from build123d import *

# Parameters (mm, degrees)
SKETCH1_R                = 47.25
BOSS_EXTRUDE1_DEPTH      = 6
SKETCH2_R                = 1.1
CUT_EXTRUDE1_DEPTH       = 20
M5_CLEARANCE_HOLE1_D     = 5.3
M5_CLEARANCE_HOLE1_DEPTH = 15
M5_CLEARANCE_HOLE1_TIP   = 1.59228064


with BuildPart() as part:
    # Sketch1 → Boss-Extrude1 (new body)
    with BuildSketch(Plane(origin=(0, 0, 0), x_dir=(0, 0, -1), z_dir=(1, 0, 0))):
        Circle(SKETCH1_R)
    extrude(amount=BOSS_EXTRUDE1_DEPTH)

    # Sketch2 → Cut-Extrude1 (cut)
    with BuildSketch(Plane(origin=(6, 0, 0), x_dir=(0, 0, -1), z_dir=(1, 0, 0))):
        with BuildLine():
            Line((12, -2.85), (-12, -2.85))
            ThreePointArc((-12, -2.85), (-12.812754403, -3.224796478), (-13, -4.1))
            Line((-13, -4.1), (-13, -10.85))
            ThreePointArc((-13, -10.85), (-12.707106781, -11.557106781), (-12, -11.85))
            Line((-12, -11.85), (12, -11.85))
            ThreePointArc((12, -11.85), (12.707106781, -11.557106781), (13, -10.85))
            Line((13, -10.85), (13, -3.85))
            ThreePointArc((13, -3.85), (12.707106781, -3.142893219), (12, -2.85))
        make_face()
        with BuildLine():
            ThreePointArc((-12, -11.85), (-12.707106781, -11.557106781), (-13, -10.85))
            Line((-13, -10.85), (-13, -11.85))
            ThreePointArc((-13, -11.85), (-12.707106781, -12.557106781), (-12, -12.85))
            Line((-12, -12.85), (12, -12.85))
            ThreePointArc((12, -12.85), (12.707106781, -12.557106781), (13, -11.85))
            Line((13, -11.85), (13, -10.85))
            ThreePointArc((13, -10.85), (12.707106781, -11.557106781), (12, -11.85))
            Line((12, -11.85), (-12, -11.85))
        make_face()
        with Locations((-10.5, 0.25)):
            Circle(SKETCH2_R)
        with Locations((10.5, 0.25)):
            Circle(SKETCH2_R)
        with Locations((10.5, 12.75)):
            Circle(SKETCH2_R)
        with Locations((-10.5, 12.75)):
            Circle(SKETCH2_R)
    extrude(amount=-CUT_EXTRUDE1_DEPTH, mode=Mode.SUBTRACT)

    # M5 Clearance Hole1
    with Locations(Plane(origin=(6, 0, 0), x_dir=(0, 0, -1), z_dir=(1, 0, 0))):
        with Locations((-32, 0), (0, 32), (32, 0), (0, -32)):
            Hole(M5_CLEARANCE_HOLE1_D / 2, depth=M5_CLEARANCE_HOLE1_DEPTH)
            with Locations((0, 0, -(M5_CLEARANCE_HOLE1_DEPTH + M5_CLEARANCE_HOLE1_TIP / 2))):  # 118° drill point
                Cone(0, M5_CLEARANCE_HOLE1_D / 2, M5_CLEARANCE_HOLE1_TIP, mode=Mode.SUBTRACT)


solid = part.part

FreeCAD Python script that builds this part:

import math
import FreeCAD as App
import Part
import Sketcher
from FreeCAD import Vector
Q = App.Units.Quantity

doc = App.newDocument("Part")
params = doc.addObject("Spreadsheet::Sheet", "Params")
for row, (alias, value) in enumerate([
    ("sketch1_diameter", "94.5 mm"),
    ("pad1_length", "6 mm"),
    ("sketch2_radius", "1 mm"),
    ("sketch2_diameter", "2.2 mm"),
    ("sketch2_width", "8 mm"),
    ("sketch2_height", "24 mm"),
    ("sketch2_width2", "7.75 mm"),
    ("pocket1_length", "20 mm"),
    ("sketch3_diameter", "5.3 mm"),
    ("hole_diameter", "5.3 mm"),
    ("hole_depth", "15 mm"),
], start=1):
    params.set(f"A{row}", alias)
    params.set(f"B{row}", "=" + value)
    params.setAlias(f"B{row}", alias)

body = doc.addObject("PartDesign::Body", "Body")

# Sketch on YZ plane
sketch1 = body.newObject("Sketcher::SketchObject", "Sketch")
sketch1.AttachmentSupport = (doc.getObject("YZ_Plane"), [""])
sketch1.MapMode = "FlatFace"
sketch1.addGeometry(Part.Circle(Vector(0, 0, 0), Vector(0, 0, 1), 47.25), False)
sketch1.addConstraint(Sketcher.Constraint("Coincident", 0, 3, -1, 1))
sketch1.addConstraint(Sketcher.Constraint("Diameter", 0, Q("94.5 mm")))
sketch1.setExpression("Constraints[1]", "Params.sketch1_diameter")
pad1 = body.newObject("PartDesign::Pad", "Pad")
pad1.Profile = sketch1
pad1.setExpression("Length", "Params.pad1_length")

# Sketch on YZ plane
sketch2 = body.newObject("Sketcher::SketchObject", "Sketch001")
sketch2.AttachmentSupport = (doc.getObject("YZ_Plane"), [""])
sketch2.MapMode = "FlatFace"
sketch2.AttachmentOffset = App.Placement(Vector(0, 0, 6), App.Rotation())
sketch2.addGeometry(Part.LineSegment(Vector(-2.85, -12, 0), Vector(-2.85, 12, 0)), False)
sketch2.addGeometry(Part.ArcOfCircle(Part.Circle(Vector(-3.849492, 12.031886, 0), Vector(0, 0, 1), 1), math.radians(-1.82722), math.radians(104.507603)), False)
sketch2.addGeometry(Part.LineSegment(Vector(-4.1, 13, 0), Vector(-11.85, 13, 0)), False)
sketch2.addGeometry(Part.ArcOfCircle(Part.Circle(Vector(-11.85, 12, 0), Vector(0, 0, 1), 1), math.radians(90), math.radians(180)), False)
sketch2.addGeometry(Part.LineSegment(Vector(-12.85, 12, 0), Vector(-12.85, -12, 0)), False)
sketch2.addGeometry(Part.ArcOfCircle(Part.Circle(Vector(-11.85, -12, 0), Vector(0, 0, 1), 1), math.radians(-180), math.radians(-90)), False)
sketch2.addGeometry(Part.LineSegment(Vector(-11.85, -13, 0), Vector(-3.85, -13, 0)), False)
sketch2.addGeometry(Part.ArcOfCircle(Part.Circle(Vector(-3.85, -12, 0), Vector(0, 0, 1), 1), math.radians(-90), math.radians(0)), False)
sketch2.addGeometry(Part.Circle(Vector(0.25, 10.5, 0), Vector(0, 0, 1), 1.1), False)
sketch2.addGeometry(Part.Circle(Vector(0.25, -10.5, 0), Vector(0, 0, 1), 1.1), False)
sketch2.addGeometry(Part.Circle(Vector(12.75, -10.5, 0), Vector(0, 0, 1), 1.1), False)
sketch2.addGeometry(Part.Circle(Vector(12.75, 10.5, 0), Vector(0, 0, 1), 1.1), False)
sketch2.addConstraint(Sketcher.Constraint("Coincident", 0, 2, 1, 1))
sketch2.addConstraint(Sketcher.Constraint("Coincident", 1, 2, 2, 1))
sketch2.addConstraint(Sketcher.Constraint("Tangent", 2, 2, 3, 1))
sketch2.addConstraint(Sketcher.Constraint("Tangent", 3, 2, 4, 1))
sketch2.addConstraint(Sketcher.Constraint("Tangent", 4, 2, 5, 1))
sketch2.addConstraint(Sketcher.Constraint("Tangent", 5, 2, 6, 1))
sketch2.addConstraint(Sketcher.Constraint("Tangent", 6, 2, 7, 1))
sketch2.addConstraint(Sketcher.Constraint("Tangent", 7, 2, 0, 1))
sketch2.addConstraint(Sketcher.Constraint("Vertical", 0))
sketch2.addConstraint(Sketcher.Constraint("Horizontal", 2))
sketch2.addConstraint(Sketcher.Constraint("Vertical", 4))
sketch2.addConstraint(Sketcher.Constraint("Horizontal", 6))
sketch2.addConstraint(Sketcher.Constraint("Equal", 1, 3))
sketch2.addConstraint(Sketcher.Constraint("Equal", 3, 5))
sketch2.addConstraint(Sketcher.Constraint("Equal", 5, 7))
sketch2.addConstraint(Sketcher.Constraint("Equal", 8, 9))
sketch2.addConstraint(Sketcher.Constraint("Equal", 9, 10))
sketch2.addConstraint(Sketcher.Constraint("Equal", 10, 11))
sketch2.addConstraint(Sketcher.Constraint("Symmetric", 8, 3, 9, 3, -1))
sketch2.addConstraint(Sketcher.Constraint("Symmetric", 10, 3, 11, 3, -1))
sketch2.addConstraint(Sketcher.Constraint("Horizontal", 9, 3, 10, 3))
sketch2.addConstraint(Sketcher.Constraint("Horizontal", 3, 3, 0, 2))
sketch2.addConstraint(Sketcher.Constraint("Radius", 1, Q("1 mm")))
sketch2.addConstraint(Sketcher.Constraint("Diameter", 8, Q("2.2 mm")))
sketch2.addConstraint(Sketcher.Constraint("DistanceX", 6, 1, 6, 2, Q("8 mm")))
sketch2.addConstraint(Sketcher.Constraint("DistanceY", 0, 1, 0, 2, Q("24 mm")))
sketch2.addConstraint(Sketcher.Constraint("DistanceY", -1, 1, 3, 3, Q("12 mm")))
sketch2.addConstraint(Sketcher.Constraint("DistanceY", 9, 3, 8, 3, Q("21 mm")))
sketch2.addConstraint(Sketcher.Constraint("DistanceX", 2, 2, 2, 1, Q("7.75 mm")))
sketch2.addConstraint(Sketcher.Constraint("DistanceX", 1, 2, -1, 1, Q("4.1 mm")))
sketch2.addConstraint(Sketcher.Constraint("DistanceX", 3, 3, 8, 3, Q("12.1 mm")))
sketch2.addConstraint(Sketcher.Constraint("DistanceX", 9, 3, 10, 3, Q("12.5 mm")))
sketch2.setExpression("Constraints[22]", "Params.sketch2_radius")
sketch2.setExpression("Constraints[23]", "Params.sketch2_diameter")
sketch2.setExpression("Constraints[24]", "Params.sketch2_width")
sketch2.setExpression("Constraints[25]", "Params.sketch2_height")
sketch2.setExpression("Constraints[28]", "Params.sketch2_width2")
pocket1 = body.newObject("PartDesign::Pocket", "Pocket")
pocket1.Profile = sketch2
pocket1.setExpression("Length", "Params.pocket1_length")

# Sketch on YZ plane
sketch3 = body.newObject("Sketcher::SketchObject", "Sketch002")
sketch3.AttachmentSupport = (doc.getObject("YZ_Plane"), [""])
sketch3.MapMode = "FlatFace"
sketch3.AttachmentOffset = App.Placement(Vector(0, 0, 6), App.Rotation())
sketch3.addGeometry(Part.Circle(Vector(0, 32, 0), Vector(0, 0, 1), 2.65), False)
sketch3.addGeometry(Part.Circle(Vector(32, 0, 0), Vector(0, 0, 1), 2.65), False)
sketch3.addGeometry(Part.Circle(Vector(0, -32, 0), Vector(0, 0, 1), 2.65), False)
sketch3.addGeometry(Part.Circle(Vector(-32, 0, 0), Vector(0, 0, 1), 2.65), False)
sketch3.addConstraint(Sketcher.Constraint("Equal", 0, 1))
sketch3.addConstraint(Sketcher.Constraint("Equal", 1, 2))
sketch3.addConstraint(Sketcher.Constraint("Equal", 2, 3))
sketch3.addConstraint(Sketcher.Constraint("Symmetric", 0, 3, 2, 3, -1, 1))
sketch3.addConstraint(Sketcher.Constraint("Symmetric", 1, 3, 3, 3, -1, 1))
sketch3.addConstraint(Sketcher.Constraint("PointOnObject", 0, 3, -2))
sketch3.addConstraint(Sketcher.Constraint("PointOnObject", 1, 3, -1))
sketch3.addConstraint(Sketcher.Constraint("Diameter", 0, Q("5.3 mm")))
sketch3.addConstraint(Sketcher.Constraint("DistanceY", -1, 1, 0, 3, Q("32 mm")))
sketch3.addConstraint(Sketcher.Constraint("DistanceX", -1, 1, 1, 3, Q("32 mm")))
sketch3.setExpression("Constraints[7]", "Params.sketch3_diameter")
doc.recompute()
hole = body.newObject("PartDesign::Hole", "Hole")
hole.Profile = sketch3
hole.ThreadType = "None"
hole.setExpression("Diameter", "Params.hole_diameter")
hole.DepthType = "Dimension"
hole.setExpression("Depth", "Params.hole_depth")
hole.DrillPoint = "Angled"
hole.DrillPointAngle = 118

doc.recompute()
